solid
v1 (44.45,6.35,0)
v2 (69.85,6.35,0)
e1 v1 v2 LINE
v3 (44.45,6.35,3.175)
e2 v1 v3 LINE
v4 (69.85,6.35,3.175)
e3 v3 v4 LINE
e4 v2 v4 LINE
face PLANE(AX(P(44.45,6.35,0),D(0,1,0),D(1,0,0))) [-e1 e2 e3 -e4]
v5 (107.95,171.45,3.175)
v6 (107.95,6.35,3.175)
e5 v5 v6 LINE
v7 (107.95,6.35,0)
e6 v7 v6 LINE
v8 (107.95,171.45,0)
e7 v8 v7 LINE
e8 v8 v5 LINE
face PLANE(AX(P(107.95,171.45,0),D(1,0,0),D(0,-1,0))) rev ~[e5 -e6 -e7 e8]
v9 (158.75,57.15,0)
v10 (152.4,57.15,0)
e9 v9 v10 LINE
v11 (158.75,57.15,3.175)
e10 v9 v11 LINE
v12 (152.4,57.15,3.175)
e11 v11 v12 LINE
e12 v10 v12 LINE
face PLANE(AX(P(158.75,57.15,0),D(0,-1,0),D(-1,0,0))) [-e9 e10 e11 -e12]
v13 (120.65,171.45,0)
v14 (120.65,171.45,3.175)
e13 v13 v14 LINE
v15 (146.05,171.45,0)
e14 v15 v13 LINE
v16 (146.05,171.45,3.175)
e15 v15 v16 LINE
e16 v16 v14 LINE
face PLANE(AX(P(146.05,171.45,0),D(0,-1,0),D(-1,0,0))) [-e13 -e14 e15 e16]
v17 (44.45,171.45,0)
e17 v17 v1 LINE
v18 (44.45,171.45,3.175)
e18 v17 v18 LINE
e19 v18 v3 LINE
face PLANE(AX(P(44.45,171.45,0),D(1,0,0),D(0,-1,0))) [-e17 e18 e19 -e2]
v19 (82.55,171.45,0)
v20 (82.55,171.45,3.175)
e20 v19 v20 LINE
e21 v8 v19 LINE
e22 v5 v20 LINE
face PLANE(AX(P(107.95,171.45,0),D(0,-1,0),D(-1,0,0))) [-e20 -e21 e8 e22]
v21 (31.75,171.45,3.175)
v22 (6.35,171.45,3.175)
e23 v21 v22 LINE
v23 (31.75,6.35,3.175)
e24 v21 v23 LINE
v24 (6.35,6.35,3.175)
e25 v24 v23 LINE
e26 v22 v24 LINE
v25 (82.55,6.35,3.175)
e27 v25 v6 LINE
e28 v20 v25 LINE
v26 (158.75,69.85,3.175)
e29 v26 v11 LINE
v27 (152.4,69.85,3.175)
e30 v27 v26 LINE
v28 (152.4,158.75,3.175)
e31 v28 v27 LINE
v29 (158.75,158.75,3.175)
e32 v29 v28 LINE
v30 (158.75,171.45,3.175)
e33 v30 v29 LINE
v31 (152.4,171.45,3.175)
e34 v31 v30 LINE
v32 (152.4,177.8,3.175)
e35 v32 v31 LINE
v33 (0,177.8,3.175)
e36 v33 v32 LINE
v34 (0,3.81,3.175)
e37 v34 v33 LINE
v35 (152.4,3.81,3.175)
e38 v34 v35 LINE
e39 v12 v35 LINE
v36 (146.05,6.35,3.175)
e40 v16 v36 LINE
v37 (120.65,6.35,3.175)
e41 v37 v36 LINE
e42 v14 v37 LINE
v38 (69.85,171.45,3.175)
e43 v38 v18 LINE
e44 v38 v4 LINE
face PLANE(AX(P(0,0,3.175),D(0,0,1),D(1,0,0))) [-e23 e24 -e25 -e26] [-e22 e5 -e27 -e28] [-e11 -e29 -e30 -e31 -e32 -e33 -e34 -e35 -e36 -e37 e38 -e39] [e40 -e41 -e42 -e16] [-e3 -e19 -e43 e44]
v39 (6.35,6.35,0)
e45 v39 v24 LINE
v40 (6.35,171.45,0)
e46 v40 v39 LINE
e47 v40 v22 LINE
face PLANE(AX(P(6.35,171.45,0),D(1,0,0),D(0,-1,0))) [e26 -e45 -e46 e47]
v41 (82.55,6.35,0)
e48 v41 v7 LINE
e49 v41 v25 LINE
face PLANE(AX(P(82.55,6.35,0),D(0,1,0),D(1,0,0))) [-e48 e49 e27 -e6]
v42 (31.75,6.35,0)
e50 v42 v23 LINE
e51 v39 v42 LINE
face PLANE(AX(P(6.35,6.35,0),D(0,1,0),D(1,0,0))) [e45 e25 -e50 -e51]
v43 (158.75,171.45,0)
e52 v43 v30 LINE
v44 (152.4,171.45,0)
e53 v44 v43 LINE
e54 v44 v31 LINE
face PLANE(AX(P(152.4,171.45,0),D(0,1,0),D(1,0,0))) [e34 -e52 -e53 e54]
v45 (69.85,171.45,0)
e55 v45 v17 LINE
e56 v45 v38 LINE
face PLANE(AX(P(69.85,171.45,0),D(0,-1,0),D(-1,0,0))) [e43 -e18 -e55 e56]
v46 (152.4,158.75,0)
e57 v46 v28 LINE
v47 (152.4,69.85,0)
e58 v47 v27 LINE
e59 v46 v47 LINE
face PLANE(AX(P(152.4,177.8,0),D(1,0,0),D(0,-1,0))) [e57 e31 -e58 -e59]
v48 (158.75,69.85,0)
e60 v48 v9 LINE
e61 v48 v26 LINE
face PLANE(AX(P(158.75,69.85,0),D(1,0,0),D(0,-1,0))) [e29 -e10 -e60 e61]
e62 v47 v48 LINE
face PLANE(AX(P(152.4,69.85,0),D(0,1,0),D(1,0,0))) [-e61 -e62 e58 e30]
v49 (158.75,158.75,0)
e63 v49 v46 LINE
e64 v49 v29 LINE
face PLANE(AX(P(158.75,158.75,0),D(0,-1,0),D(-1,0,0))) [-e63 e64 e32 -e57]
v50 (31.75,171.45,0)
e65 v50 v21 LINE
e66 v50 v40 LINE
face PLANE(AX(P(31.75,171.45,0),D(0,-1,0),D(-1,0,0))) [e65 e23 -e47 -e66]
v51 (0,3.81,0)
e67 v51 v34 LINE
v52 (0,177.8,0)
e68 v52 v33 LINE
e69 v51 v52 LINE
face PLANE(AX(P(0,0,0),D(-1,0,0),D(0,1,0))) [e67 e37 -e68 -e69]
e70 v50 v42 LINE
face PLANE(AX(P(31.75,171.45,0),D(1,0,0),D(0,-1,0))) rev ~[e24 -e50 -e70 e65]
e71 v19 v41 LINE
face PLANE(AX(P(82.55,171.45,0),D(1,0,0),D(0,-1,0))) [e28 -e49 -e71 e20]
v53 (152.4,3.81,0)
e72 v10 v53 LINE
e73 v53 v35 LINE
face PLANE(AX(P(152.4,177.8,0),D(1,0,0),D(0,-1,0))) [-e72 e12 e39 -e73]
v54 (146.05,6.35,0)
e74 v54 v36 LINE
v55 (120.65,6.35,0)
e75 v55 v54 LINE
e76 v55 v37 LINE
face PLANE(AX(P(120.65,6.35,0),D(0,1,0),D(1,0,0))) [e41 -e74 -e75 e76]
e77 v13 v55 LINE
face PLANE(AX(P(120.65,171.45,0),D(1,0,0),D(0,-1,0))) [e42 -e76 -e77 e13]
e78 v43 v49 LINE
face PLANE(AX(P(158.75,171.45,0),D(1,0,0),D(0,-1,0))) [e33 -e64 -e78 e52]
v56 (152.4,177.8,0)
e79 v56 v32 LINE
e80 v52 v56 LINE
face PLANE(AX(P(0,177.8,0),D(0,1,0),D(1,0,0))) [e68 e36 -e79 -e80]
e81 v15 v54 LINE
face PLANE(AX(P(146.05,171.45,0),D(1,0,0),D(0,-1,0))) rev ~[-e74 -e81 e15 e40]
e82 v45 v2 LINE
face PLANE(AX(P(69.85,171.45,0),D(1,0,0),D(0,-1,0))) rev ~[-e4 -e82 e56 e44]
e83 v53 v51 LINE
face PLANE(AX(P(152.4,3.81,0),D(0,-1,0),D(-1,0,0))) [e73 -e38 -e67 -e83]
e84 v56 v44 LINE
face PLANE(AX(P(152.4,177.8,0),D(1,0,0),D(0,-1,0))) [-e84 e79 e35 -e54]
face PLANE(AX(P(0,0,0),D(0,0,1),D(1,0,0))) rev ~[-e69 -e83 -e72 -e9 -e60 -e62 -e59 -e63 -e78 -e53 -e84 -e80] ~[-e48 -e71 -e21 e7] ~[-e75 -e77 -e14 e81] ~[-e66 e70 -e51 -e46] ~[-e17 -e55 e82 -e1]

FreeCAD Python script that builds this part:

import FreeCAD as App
import Part
import Sketcher
from FreeCAD import Vector
Q = App.Units.Quantity

doc = App.newDocument("Part")
params = doc.addObject("Spreadsheet::Sheet", "Params")
for row, (alias, value) in enumerate([
    ("sketch1_width", "6 in"),
    ("sketch1_height", "7 in"),
    ("pad1_length", "0.125 in"),
    ("sketch2_height", "0.5 in"),
    ("sketch2_width", "0.25 in"),
    ("pad2_length", "0.125 in"),
    ("sketch3_width", "1 in"),
    ("sketch3_height", "6.5 in"),
    ("pocket1_length", "0.125 in"),
    ("sketch4_height", "0.15 in"),
    ("sketch4_width", "6 in"),
    ("pocket2_length", "1 in"),
], start=1):
    params.set(f"A{row}", alias)
    params.set(f"B{row}", "=" + value)
    params.setAlias(f"B{row}", alias)

body = doc.addObject("PartDesign::Body", "Body")

# Sketch on XY plane
sketch1 = body.newObject("Sketcher::SketchObject", "Sketch")
sketch1.AttachmentSupport = (doc.getObject("XY_Plane"), [""])
sketch1.MapMode = "FlatFace"
sketch1.addGeometry([
    Part.LineSegment(Vector(0, 178, 0), Vector(0, 0, 0)),
    Part.LineSegment(Vector(0, 0, 0), Vector(152, 0, 0)),
    Part.LineSegment(Vector(152, 0, 0), Vector(152, 178, 0)),
    Part.LineSegment(Vector(152, 178, 0), Vector(0, 178, 0)),
], False)
sketch1.addConstraint([
    Sketcher.Constraint("Coincident", 0, 2, 1, 1),
    Sketcher.Constraint("Coincident", 1, 2, 2, 1),
    Sketcher.Constraint("Coincident", 2, 2, 3, 1),
    Sketcher.Constraint("Coincident", 3, 2, 0, 1),
    Sketcher.Constraint("Vertical", 0),
    Sketcher.Constraint("Horizontal", 1),
    Sketcher.Constraint("Vertical", 2),
    Sketcher.Constraint("Horizontal", 3),
    Sketcher.Constraint("Coincident", 0, 2, -1, 1),
    Sketcher.Constraint("DistanceX", 1, 1, 1, 2, Q("6 in")),
    Sketcher.Constraint("DistanceY", 0, 2, 0, 1, Q("7 in")),
])
sketch1.setExpression("Constraints[9]", "Params.sketch1_width")
sketch1.setExpression("Constraints[10]", "Params.sketch1_height")
pad1 = body.newObject("PartDesign::Pad", "Pad")
pad1.Profile = sketch1
pad1.setExpression("Length", "Params.pad1_length")

# Sketch on XY plane
sketch2 = body.newObject("Sketcher::SketchObject", "Sketch001")
sketch2.AttachmentSupport = (doc.getObject("XY_Plane"), [""])
sketch2.MapMode = "FlatFace"
sketch2.addGeometry([
    Part.LineSegment(Vector(159, 57, 0), Vector(152, 57, 0)),  # 0
    Part.LineSegment(Vector(152, 57, 0), Vector(152, 70, 0)),  # 1
    Part.LineSegment(Vector(152, 70, 0), Vector(159, 70, 0)),  # 2
    Part.LineSegment(Vector(159, 70, 0), Vector(159, 57, 0)),  # 3
    Part.LineSegment(Vector(159, 159, 0), Vector(152, 159, 0)),  # 4
    Part.LineSegment(Vector(152, 159, 0), Vector(152, 171, 0)),  # 5
    Part.LineSegment(Vector(152, 171, 0), Vector(159, 171, 0)),  # 6
    Part.LineSegment(Vector(159, 171, 0), Vector(159, 159, 0)),  # 7
], False)
sketch2.addConstraint([
    Sketcher.Constraint("Coincident", 0, 2, 1, 1),
    Sketcher.Constraint("Coincident", 1, 2, 2, 1),
    Sketcher.Constraint("Coincident", 2, 2, 3, 1),
    Sketcher.Constraint("Coincident", 3, 2, 0, 1),
    Sketcher.Constraint("Coincident", 4, 2, 5, 1),
    Sketcher.Constraint("Coincident", 5, 2, 6, 1),
    Sketcher.Constraint("Coincident", 6, 2, 7, 1),
    Sketcher.Constraint("Coincident", 7, 2, 4, 1),
    Sketcher.Constraint("Horizontal", 0),
    Sketcher.Constraint("Vertical", 1),
    Sketcher.Constraint("Horizontal", 2),
    Sketcher.Constraint("Vertical", 3),
    Sketcher.Constraint("Horizontal", 4),
    Sketcher.Constraint("Vertical", 5),
    Sketcher.Constraint("Horizontal", 6),
    Sketcher.Constraint("Vertical", 7),
    Sketcher.Constraint("Vertical", 1, 2, 4, 2),
    Sketcher.Constraint("Vertical", 3, 2, 6, 2),
    Sketcher.Constraint("Equal", 3, 5),
    Sketcher.Constraint("DistanceY", 1, 1, 1, 2, Q("0.5 in")),
    Sketcher.Constraint("DistanceX", 0, 2, 0, 1, Q("0.25 in")),
    Sketcher.Constraint("DistanceY", 1, 2, 4, 2, Q("3.5 in")),
    Sketcher.Constraint("DistanceX", -1, 1, 0, 2, Q("6 in")),
    Sketcher.Constraint("DistanceY", -1, 1, 0, 2, Q("2.25 in")),
])
sketch2.setExpression("Constraints[19]", "Params.sketch2_height")
sketch2.setExpression("Constraints[20]", "Params.sketch2_width")
pad2 = body.newObject("PartDesign::Pad", "Pad001")
pad2.Profile = sketch2
pad2.setExpression("Length", "Params.pad2_length")

# Sketch on XY plane
sketch3 = body.newObject("Sketcher::SketchObject", "Sketch002")
sketch3.AttachmentSupport = (doc.getObject("XY_Plane"), [""])
sketch3.MapMode = "FlatFace"
sketch3.addGeometry([
    Part.LineSegment(Vector(121, 171, 0), Vector(146, 171, 0)),  # 0
    Part.LineSegment(Vector(146, 171, 0), Vector(146, 6, 0)),  # 1
    Part.LineSegment(Vector(146, 6, 0), Vector(121, 6, 0)),  # 2
    Part.LineSegment(Vector(121, 6, 0), Vector(121, 171, 0)),  # 3
    Part.LineSegment(Vector(83, 171, 0), Vector(108, 171, 0)),  # 4
    Part.LineSegment(Vector(108, 171, 0), Vector(108, 6, 0)),  # 5
    Part.LineSegment(Vector(108, 6, 0), Vector(83, 6, 0)),  # 6
    Part.LineSegment(Vector(83, 6, 0), Vector(83, 171, 0)),  # 7
    Part.LineSegment(Vector(44, 171, 0), Vector(70, 171, 0)),  # 8
    Part.LineSegment(Vector(70, 171, 0), Vector(70, 6, 0)),  # 9
    Part.LineSegment(Vector(70, 6, 0), Vector(44, 6, 0)),  # 10
    Part.LineSegment(Vector(44, 6, 0), Vector(44, 171, 0)),  # 11
    Part.LineSegment(Vector(6, 171, 0), Vector(32, 171, 0)),  # 12
    Part.LineSegment(Vector(32, 171, 0), Vector(32, 6, 0)),  # 13
    Part.LineSegment(Vector(32, 6, 0), Vector(6, 6, 0)),  # 14
    Part.LineSegment(Vector(6, 6, 0), Vector(6, 171, 0)),  # 15
], False)
sketch3.addConstraint([
    Sketcher.Constraint("Coincident", 0, 2, 1, 1),
    Sketcher.Constraint("Coincident", 1, 2, 2, 1),
    Sketcher.Constraint("Coincident", 2, 2, 3, 1),
    Sketcher.Constraint("Coincident", 3, 2, 0, 1),
    Sketcher.Constraint("Coincident", 4, 2, 5, 1),
    Sketcher.Constraint("Coincident", 5, 2, 6, 1),
    Sketcher.Constraint("Coincident", 6, 2, 7, 1),
    Sketcher.Constraint("Coincident", 7, 2, 4, 1),
    Sketcher.Constraint("Coincident", 8, 2, 9, 1),
    Sketcher.Constraint("Coincident", 9, 2, 10, 1),
    Sketcher.Constraint("Coincident", 10, 2, 11, 1),
    Sketcher.Constraint("Coincident", 11, 2, 8, 1),
    Sketcher.Constraint("Coincident", 12, 2, 13, 1),
    Sketcher.Constraint("Coincident", 13, 2, 14, 1),
    Sketcher.Constraint("Coincident", 14, 2, 15, 1),
    Sketcher.Constraint("Coincident", 15, 2, 12, 1),
    Sketcher.Constraint("Horizontal", 0),
    Sketcher.Constraint("Vertical", 1),
    Sketcher.Constraint("Horizontal", 2),
    Sketcher.Constraint("Vertical", 3),
    Sketcher.Constraint("Horizontal", 4),
    Sketcher.Constraint("Vertical", 5),
    Sketcher.Constraint("Horizontal", 6),
    Sketcher.Constraint("Vertical", 7),
    Sketcher.Constraint("Horizontal", 8),
    Sketcher.Constraint("Vertical", 9),
    Sketcher.Constraint("Horizontal", 10),
    Sketcher.Constraint("Vertical", 11),
    Sketcher.Constraint("Horizontal", 12),
    Sketcher.Constraint("Vertical", 13),
    Sketcher.Constraint("Horizontal", 14),
    Sketcher.Constraint("Vertical", 15),
    Sketcher.Constraint("Horizontal", 3, 2, 4, 2),
    Sketcher.Constraint("Horizontal", 2, 2, 5, 2),
    Sketcher.Constraint("Horizontal", 7, 2, 8, 2),
    Sketcher.Constraint("Horizontal", 6, 2, 9, 2),
    Sketcher.Constraint("Horizontal", 11, 2, 12, 2),
    Sketcher.Constraint("Horizontal", 10, 2, 13, 2),
    Sketcher.Constraint("Equal", 2, 4),
    Sketcher.Constraint("Equal", 6, 8),
    Sketcher.Constraint("Equal", 10, 12),
    Sketcher.Constraint("DistanceX", 0, 1, 0, 2, Q("1 in")),
    Sketcher.Constraint("DistanceX", 4, 2, 0, 2, Q("1.5 in")),
    Sketcher.Constraint("DistanceX", 8, 2, 4, 2, Q("1.5 in")),
    Sketcher.Constraint("DistanceX", 12, 2, 8, 2, Q("1.5 in")),
    Sketcher.Constraint("DistanceY", -1, 1, 1, 2, Q("0.25 in")),
    Sketcher.Constraint("DistanceX", -1, 1, 14, 2, Q("0.25 in")),
    Sketcher.Constraint("DistanceY", 1, 2, 1, 1, Q("6.5 in")),
])
sketch3.setExpression("Constraints[41]", "Params.sketch3_width")
sketch3.setExpression("Constraints[47]", "Params.sketch3_height")
pocket1 = body.newObject("PartDesign::Pocket", "Pocket")
pocket1.Profile = sketch3
pocket1.setExpression("Length", "Params.pocket1_length")
pocket1.Reversed = True

# Sketch on XY plane
sketch4 = body.newObject("Sketcher::SketchObject", "Sketch003")
sketch4.AttachmentSupport = (doc.getObject("XY_Plane"), [""])
sketch4.MapMode = "FlatFace"
sketch4.addGeometry([
    Part.LineSegment(Vector(0, 0, 0), Vector(0, 3.8, 0)),
    Part.LineSegment(Vector(0, 3.8, 0), Vector(152.4, 3.8, 0)),
    Part.LineSegment(Vector(152.4, 3.8, 0), Vector(152.4, 0, 0)),
    Part.LineSegment(Vector(152.4, 0, 0), Vector(0, 0, 0)),
], False)
sketch4.addConstraint([
    Sketcher.Constraint("Coincident", 0, 2, 1, 1),
    Sketcher.Constraint("Coincident", 1, 2, 2, 1),
    Sketcher.Constraint("Coincident", 2, 2, 3, 1),
    Sketcher.Constraint("Coincident", 3, 2, 0, 1),
    Sketcher.Constraint("Vertical", 0),
    Sketcher.Constraint("Horizontal", 1),
    Sketcher.Constraint("Vertical", 2),
    Sketcher.Constraint("Horizontal", 3),
    Sketcher.Constraint("Coincident", 3, 2, -1, 1),
    Sketcher.Constraint("DistanceY", 0, 1, 0, 2, Q("0.15 in")),
    Sketcher.Constraint("DistanceX", 1, 1, 1, 2, Q("6 in")),
])
sketch4.setExpression("Constraints[9]", "Params.sketch4_height")
sketch4.setExpression("Constraints[10]", "Params.sketch4_width")
pocket2 = body.newObject("PartDesign::Pocket", "Pocket001")
pocket2.Profile = sketch4
pocket2.setExpression("Length", "Params.pocket2_length")
pocket2.Reversed = True

doc.recompute()
